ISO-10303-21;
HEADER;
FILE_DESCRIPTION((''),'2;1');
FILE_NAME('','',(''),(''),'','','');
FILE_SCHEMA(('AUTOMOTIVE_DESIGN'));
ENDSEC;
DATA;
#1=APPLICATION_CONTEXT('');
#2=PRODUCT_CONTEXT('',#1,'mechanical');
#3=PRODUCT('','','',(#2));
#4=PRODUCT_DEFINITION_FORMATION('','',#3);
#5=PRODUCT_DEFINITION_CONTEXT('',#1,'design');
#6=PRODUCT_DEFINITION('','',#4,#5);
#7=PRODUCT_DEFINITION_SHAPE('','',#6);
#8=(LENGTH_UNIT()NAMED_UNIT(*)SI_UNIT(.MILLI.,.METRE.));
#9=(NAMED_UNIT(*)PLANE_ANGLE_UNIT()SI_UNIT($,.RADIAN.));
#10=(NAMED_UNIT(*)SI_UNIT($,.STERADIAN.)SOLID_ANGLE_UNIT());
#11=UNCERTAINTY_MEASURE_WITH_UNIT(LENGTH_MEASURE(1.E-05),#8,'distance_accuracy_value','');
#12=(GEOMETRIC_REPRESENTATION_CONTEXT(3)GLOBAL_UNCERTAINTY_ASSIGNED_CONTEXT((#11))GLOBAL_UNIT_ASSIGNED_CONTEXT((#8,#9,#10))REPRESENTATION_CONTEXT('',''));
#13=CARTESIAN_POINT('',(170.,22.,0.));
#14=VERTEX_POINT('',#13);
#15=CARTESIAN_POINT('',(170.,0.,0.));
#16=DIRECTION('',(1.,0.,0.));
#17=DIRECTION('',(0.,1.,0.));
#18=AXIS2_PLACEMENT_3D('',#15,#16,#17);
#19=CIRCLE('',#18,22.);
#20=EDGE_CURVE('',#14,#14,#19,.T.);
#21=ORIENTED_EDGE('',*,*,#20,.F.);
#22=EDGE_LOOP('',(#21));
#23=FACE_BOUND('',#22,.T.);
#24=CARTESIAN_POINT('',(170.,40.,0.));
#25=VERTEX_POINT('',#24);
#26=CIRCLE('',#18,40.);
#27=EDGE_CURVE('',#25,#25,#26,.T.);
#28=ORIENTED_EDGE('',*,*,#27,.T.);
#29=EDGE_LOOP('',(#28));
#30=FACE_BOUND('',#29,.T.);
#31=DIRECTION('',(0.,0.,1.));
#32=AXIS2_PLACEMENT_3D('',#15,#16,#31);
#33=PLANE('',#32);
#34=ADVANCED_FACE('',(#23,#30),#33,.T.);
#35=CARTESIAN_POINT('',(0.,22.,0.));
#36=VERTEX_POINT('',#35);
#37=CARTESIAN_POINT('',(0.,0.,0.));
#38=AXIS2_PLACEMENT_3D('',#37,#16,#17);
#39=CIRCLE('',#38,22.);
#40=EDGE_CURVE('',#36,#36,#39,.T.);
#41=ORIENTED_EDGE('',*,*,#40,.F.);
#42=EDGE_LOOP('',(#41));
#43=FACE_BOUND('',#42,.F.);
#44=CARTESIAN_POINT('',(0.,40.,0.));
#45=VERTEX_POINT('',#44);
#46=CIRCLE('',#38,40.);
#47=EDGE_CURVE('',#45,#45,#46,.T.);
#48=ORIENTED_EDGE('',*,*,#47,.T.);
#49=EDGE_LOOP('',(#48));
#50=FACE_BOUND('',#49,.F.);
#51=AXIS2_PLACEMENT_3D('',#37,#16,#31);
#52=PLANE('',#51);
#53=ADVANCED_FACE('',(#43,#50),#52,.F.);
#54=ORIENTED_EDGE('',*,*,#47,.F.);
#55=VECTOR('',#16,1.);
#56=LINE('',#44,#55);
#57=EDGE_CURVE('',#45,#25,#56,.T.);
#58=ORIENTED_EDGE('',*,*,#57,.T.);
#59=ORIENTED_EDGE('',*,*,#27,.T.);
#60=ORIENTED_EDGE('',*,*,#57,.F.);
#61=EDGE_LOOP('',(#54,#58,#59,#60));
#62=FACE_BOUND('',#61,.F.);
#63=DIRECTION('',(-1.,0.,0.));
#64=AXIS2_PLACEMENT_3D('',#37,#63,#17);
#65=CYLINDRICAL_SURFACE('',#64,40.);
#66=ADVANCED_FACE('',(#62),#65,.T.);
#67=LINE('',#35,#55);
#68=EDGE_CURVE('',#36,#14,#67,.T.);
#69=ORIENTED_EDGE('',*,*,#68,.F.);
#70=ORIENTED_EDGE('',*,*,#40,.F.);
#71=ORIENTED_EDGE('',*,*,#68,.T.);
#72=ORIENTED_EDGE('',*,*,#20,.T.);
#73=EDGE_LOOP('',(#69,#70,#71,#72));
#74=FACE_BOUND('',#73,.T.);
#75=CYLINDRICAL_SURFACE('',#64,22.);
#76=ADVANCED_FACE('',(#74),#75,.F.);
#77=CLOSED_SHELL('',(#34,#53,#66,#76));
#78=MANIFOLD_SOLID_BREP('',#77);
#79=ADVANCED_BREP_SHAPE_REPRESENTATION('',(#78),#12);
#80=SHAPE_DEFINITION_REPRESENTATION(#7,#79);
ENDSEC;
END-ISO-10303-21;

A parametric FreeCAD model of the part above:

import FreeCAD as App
import Part
import Sketcher
from FreeCAD import Vector

doc = App.newDocument("Part")
body = doc.addObject("PartDesign::Body", "Body")

# Sketch on YZ plane
sketch1 = body.newObject("Sketcher::SketchObject", "Sketch")
sketch1.AttachmentSupport = (doc.getObject("YZ_Plane"), [""])
sketch1.MapMode = "FlatFace"
sketch1.addGeometry([
    Part.Circle(Vector(0, 0, 0), Vector(0, 0, 1), 40),
    Part.Circle(Vector(0, 0, 0), Vector(0, 0, 1), 22),
], False)
sketch1.addConstraint([
    Sketcher.Constraint("Coincident", 0, 3, -1, 1),
    Sketcher.Constraint("Coincident", 1, 3, -1, 1),
    Sketcher.Constraint("Diameter", 0, 80.0),
    Sketcher.Constraint("Diameter", 1, 44.0),
])
pad1 = body.newObject("PartDesign::Pad", "Pad")
pad1.Profile = sketch1
pad1.Length = 170

doc.recompute()
